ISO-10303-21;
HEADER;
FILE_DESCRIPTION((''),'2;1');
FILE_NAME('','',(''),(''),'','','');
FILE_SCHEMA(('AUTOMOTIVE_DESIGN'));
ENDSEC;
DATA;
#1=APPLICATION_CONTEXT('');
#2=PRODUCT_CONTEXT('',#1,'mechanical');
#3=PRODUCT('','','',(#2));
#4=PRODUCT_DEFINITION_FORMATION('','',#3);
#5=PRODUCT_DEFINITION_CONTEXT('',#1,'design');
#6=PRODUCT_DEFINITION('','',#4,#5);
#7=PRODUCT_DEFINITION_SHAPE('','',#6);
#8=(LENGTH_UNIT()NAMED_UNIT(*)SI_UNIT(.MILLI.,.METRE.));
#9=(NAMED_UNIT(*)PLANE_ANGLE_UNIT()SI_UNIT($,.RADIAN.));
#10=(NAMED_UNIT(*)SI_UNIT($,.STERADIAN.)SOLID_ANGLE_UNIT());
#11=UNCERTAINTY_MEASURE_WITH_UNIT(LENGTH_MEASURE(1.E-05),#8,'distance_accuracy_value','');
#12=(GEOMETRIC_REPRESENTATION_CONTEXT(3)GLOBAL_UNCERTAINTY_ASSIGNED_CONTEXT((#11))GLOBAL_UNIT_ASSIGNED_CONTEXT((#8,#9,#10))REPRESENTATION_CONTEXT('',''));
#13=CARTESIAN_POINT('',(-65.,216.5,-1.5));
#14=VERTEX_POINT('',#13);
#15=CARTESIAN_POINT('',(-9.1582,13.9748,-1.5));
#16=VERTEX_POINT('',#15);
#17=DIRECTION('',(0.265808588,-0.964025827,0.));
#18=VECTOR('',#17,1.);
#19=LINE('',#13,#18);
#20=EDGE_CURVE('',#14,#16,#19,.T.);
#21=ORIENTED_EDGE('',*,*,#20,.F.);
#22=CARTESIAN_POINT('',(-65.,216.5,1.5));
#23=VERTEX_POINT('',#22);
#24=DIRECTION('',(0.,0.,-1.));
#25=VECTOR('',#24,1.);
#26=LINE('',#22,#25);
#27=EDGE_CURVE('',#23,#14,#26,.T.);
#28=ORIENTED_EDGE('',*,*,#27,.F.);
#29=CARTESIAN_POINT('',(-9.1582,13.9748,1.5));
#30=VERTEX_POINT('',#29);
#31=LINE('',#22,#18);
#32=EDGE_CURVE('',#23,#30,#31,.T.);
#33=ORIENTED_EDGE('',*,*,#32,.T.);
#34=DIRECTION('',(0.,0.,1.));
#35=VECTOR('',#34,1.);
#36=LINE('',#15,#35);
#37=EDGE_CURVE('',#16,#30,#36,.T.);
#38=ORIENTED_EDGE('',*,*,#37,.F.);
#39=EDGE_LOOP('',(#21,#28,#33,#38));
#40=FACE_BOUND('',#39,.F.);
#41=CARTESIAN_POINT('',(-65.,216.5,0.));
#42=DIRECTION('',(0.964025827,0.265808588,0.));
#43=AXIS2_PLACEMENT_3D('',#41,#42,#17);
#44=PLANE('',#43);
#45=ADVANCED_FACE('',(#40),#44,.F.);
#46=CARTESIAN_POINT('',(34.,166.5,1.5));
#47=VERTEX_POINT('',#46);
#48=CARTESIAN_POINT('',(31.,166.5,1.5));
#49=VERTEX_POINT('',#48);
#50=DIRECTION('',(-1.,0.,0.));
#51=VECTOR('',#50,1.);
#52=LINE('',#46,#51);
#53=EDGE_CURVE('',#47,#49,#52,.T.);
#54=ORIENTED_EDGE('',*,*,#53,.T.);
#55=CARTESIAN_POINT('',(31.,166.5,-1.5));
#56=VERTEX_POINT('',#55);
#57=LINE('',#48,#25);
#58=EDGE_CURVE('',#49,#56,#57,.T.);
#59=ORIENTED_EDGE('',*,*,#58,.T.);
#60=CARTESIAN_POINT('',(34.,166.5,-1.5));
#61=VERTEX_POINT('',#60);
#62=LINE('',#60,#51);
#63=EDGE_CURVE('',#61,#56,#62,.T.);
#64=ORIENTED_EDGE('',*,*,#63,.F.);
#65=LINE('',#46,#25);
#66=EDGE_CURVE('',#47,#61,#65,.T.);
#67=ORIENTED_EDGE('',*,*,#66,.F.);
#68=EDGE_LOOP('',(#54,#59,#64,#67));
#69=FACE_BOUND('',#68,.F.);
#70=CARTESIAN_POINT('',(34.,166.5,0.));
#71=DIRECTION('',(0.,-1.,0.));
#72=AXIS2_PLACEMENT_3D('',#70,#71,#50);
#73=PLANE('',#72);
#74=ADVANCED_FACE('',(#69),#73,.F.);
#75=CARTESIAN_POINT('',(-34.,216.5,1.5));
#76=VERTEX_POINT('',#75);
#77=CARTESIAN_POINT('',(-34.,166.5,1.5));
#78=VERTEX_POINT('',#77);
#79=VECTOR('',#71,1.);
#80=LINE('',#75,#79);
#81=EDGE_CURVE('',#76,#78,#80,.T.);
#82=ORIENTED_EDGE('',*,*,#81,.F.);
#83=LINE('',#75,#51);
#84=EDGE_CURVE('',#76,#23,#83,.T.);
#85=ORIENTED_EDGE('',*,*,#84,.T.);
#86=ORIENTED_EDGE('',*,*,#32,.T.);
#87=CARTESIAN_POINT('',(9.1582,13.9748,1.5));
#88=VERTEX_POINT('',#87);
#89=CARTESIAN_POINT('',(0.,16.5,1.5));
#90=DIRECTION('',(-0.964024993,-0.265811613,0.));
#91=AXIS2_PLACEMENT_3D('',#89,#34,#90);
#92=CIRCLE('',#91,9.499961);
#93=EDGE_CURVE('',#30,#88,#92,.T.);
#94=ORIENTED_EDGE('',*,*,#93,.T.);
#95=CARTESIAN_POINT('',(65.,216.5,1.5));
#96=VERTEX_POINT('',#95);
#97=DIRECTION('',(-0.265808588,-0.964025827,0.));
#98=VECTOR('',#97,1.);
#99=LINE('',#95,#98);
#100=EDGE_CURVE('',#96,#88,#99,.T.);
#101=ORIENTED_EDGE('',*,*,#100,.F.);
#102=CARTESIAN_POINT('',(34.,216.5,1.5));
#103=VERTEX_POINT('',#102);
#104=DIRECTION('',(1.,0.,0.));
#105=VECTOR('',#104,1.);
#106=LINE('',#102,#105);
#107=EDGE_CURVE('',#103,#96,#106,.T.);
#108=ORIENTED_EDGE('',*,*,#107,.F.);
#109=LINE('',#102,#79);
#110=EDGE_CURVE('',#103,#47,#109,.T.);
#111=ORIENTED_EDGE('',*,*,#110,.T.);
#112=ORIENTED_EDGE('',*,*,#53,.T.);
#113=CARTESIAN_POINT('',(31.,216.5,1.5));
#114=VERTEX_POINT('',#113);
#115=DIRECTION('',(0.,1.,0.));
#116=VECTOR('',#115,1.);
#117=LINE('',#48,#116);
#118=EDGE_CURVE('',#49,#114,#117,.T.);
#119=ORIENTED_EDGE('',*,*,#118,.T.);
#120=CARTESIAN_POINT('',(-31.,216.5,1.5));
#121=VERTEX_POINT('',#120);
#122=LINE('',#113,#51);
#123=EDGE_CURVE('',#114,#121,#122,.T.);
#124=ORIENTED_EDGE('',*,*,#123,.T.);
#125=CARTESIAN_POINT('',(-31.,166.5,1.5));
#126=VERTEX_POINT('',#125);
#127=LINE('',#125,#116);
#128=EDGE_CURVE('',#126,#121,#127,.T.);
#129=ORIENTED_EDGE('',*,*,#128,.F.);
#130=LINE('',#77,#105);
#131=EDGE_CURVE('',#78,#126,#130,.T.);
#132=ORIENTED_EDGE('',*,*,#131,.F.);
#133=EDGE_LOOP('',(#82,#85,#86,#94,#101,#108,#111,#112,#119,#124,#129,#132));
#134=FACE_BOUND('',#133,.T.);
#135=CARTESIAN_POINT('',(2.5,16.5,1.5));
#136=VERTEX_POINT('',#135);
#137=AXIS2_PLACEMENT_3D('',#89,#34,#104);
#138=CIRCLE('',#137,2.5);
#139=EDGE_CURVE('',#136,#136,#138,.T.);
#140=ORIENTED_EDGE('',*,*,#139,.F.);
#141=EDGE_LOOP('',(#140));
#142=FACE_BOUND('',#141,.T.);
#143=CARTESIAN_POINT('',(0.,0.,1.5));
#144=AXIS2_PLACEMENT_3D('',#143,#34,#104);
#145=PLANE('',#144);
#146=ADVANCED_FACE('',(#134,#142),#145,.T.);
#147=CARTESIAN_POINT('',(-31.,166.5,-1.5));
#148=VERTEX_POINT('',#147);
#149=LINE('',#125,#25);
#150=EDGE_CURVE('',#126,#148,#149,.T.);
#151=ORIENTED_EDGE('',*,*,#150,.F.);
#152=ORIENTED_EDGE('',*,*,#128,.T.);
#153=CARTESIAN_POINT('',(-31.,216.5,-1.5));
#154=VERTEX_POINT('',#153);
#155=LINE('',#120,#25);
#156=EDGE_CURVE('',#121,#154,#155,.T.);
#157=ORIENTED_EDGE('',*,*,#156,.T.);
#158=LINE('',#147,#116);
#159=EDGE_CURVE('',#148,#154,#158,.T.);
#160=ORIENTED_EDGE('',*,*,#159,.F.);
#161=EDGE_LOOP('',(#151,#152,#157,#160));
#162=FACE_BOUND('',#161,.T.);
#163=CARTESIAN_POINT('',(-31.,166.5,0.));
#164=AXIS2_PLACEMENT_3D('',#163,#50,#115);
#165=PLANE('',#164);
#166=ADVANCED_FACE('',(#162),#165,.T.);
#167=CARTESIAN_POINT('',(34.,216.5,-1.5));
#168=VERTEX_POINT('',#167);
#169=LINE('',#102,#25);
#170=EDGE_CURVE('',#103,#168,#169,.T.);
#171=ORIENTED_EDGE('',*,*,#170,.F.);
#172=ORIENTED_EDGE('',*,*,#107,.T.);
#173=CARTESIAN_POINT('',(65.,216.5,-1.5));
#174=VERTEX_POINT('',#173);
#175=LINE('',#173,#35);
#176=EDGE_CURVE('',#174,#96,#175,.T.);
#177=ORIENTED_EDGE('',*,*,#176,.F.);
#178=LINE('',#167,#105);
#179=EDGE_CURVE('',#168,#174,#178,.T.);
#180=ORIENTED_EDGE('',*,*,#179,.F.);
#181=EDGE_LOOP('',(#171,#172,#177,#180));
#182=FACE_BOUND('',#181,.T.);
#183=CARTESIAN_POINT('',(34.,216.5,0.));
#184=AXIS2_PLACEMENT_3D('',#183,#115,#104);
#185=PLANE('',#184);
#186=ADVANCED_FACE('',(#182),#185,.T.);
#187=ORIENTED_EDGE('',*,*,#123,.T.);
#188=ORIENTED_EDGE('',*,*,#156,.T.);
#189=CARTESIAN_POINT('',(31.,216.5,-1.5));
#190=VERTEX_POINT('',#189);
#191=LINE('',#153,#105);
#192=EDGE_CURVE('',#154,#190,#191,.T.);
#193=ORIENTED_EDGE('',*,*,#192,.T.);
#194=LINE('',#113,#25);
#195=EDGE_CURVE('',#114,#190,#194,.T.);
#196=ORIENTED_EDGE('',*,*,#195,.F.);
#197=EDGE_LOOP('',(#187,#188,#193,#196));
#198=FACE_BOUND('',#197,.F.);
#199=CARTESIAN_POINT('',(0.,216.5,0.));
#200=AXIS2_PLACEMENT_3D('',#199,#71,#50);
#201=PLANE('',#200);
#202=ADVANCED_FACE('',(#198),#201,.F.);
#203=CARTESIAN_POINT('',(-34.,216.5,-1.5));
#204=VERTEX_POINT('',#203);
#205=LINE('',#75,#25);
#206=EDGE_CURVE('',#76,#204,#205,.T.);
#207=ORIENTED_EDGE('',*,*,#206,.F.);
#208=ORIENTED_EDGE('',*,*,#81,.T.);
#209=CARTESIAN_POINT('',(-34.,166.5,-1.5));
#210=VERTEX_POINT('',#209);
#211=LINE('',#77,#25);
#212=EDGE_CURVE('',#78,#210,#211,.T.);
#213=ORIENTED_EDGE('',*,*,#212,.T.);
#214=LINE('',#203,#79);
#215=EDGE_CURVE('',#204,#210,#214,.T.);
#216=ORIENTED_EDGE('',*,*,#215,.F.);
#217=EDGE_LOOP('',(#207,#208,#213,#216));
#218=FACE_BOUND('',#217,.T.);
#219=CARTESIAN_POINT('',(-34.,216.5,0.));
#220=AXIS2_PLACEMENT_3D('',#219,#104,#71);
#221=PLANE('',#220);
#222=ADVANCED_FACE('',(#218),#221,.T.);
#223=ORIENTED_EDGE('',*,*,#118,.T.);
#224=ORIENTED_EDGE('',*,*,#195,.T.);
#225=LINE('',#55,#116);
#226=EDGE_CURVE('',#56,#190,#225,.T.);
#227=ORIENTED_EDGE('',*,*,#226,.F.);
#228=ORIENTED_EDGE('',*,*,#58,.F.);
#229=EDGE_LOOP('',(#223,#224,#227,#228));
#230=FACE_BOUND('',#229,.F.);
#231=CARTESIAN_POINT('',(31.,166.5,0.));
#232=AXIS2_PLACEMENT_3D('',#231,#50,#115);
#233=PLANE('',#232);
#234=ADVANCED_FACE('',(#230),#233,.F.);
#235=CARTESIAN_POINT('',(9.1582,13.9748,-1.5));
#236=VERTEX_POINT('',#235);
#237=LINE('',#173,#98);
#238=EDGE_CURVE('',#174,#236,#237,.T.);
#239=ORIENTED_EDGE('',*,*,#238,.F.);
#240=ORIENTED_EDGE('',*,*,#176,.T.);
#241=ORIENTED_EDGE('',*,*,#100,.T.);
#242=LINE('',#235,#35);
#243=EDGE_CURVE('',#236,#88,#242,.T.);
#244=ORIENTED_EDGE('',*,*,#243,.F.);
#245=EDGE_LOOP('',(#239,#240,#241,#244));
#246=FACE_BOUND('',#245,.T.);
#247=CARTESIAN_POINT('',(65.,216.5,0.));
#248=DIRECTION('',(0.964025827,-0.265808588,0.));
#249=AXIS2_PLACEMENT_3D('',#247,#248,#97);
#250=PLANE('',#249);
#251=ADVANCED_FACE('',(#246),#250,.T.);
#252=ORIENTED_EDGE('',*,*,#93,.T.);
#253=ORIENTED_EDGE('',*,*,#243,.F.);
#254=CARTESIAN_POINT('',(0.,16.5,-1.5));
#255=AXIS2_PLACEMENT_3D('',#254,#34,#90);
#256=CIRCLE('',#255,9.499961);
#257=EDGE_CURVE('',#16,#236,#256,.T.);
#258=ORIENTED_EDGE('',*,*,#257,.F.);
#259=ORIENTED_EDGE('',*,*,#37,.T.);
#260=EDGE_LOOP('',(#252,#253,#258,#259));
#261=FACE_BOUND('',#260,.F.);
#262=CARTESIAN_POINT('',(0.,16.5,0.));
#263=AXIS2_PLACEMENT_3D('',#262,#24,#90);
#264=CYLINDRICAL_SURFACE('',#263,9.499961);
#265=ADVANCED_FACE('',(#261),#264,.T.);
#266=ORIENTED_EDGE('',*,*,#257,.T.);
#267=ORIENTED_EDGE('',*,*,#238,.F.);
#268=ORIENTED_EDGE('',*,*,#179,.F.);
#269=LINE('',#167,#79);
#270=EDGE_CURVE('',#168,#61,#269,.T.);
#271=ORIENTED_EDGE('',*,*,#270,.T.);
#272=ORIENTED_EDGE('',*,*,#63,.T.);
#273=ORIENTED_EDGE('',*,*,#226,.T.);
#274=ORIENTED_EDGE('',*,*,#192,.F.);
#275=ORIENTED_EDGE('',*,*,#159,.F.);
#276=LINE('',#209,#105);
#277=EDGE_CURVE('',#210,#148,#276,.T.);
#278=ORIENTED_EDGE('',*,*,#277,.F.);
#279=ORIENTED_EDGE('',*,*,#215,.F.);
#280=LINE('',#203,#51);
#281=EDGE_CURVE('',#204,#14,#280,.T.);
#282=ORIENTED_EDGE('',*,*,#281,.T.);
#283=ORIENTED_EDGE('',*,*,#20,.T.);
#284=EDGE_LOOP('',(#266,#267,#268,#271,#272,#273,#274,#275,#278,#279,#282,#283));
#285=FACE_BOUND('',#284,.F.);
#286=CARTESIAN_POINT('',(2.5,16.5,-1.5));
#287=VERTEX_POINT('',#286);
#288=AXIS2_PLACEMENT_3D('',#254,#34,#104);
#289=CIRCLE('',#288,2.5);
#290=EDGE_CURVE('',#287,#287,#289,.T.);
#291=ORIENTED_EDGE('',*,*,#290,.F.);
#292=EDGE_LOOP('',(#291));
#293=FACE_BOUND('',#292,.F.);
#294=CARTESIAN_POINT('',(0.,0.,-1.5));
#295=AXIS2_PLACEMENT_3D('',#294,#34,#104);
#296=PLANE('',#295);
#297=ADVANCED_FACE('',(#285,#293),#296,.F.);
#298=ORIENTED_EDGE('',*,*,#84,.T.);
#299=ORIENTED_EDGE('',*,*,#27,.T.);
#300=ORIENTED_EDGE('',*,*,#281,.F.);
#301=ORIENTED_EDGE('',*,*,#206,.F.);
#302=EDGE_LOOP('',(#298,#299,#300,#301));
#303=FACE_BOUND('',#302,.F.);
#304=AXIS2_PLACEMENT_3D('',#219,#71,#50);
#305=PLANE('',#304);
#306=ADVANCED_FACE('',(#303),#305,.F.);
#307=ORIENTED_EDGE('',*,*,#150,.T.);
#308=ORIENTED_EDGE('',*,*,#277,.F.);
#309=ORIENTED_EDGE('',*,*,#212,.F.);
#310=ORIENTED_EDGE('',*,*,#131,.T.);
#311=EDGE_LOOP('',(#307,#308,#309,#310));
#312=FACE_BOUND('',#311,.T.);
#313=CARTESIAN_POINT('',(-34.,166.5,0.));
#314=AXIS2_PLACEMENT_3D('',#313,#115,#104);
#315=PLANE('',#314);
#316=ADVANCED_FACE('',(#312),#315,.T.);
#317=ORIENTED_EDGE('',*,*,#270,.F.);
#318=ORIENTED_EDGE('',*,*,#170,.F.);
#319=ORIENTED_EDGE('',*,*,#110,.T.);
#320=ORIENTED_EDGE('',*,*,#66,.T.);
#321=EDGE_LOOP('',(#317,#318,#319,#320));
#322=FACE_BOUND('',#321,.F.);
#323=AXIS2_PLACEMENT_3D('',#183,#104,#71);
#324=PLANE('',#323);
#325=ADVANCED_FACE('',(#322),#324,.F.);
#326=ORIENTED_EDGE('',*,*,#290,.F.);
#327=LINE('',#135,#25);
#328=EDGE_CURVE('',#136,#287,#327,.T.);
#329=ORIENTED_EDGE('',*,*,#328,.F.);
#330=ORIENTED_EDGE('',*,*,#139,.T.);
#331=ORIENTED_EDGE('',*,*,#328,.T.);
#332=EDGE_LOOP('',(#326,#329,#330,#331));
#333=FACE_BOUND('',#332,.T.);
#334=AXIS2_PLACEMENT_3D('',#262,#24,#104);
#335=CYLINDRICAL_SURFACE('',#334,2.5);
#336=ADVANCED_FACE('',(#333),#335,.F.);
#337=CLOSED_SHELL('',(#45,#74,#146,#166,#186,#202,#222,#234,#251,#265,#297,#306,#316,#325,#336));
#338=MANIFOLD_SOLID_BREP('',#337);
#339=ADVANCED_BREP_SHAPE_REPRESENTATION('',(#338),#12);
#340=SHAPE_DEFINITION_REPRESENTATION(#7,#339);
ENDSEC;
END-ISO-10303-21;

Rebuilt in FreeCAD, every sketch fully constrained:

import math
import FreeCAD as App
import Part
import Sketcher
Q = App.Units.Quantity

doc = App.newDocument("Part")
params = doc.addObject("Spreadsheet::Sheet", "Params")
for row, (alias, value) in enumerate([
    ("sketch1_radius", "9.5 mm"),
    ("sketch1_width", "31 mm"),
    ("sketch1_width2", "3 mm"),
    ("sketch1_height", "50 mm"),
    ("sketch1_diameter", "5 mm"),
    ("pad1_length", "1.5 mm"),
    ("pad1_length2", "1.5 mm"),
], start=1):
    params.set(f"A{row}", alias)
    params.set(f"B{row}", "=" + value)
    params.setAlias(f"B{row}", alias)

body = doc.addObject("PartDesign::Body", "Body")

sketch1 = doc.addObject("Sketcher::SketchObject", "Sketch")
body.addObject(sketch1)
sketch1.AttachmentSupport = (doc.XY_Plane, [""])
sketch1.MapMode = "FlatFace"
sketch1.addGeometry(Part.LineSegment(App.Vector(-65, 216.5, 0), App.Vector(-9.2, 14, 0)), False)
sketch1.addGeometry(Part.ArcOfCircle(Part.Circle(App.Vector(0, 16.5, 0), App.Vector(0, 0, 1), 9.5), math.radians(-165), math.radians(-15)), False)
sketch1.addGeometry(Part.LineSegment(App.Vector(9.2, 14, 0), App.Vector(65, 216.5, 0)), False)
sketch1.addGeometry(Part.LineSegment(App.Vector(65, 216.5, 0), App.Vector(34, 216.5, 0)), False)
sketch1.addGeometry(Part.LineSegment(App.Vector(34, 216.5, 0), App.Vector(34, 166.5, 0)), False)
sketch1.addGeometry(Part.LineSegment(App.Vector(34, 166.5, 0), App.Vector(31, 166.5, 0)), False)
sketch1.addGeometry(Part.LineSegment(App.Vector(31, 166.5, 0), App.Vector(31, 216.5, 0)), False)
sketch1.addGeometry(Part.LineSegment(App.Vector(31, 216.5, 0), App.Vector(-31, 216.5, 0)), False)
sketch1.addGeometry(Part.LineSegment(App.Vector(-31, 216.5, 0), App.Vector(-31, 166.5, 0)), False)
sketch1.addGeometry(Part.LineSegment(App.Vector(-31, 166.5, 0), App.Vector(-34, 166.5, 0)), False)
sketch1.addGeometry(Part.LineSegment(App.Vector(-34, 166.5, 0), App.Vector(-34, 216.5, 0)), False)
sketch1.addGeometry(Part.LineSegment(App.Vector(-34, 216.5, 0), App.Vector(-65, 216.5, 0)), False)
sketch1.addGeometry(Part.Circle(App.Vector(0, 16.5, 0), App.Vector(0, 0, 1), 2.5), False)
sketch1.addConstraint(Sketcher.Constraint("Tangent", 0, 2, 1, 1))
sketch1.addConstraint(Sketcher.Constraint("Tangent", 1, 2, 2, 1))
sketch1.addConstraint(Sketcher.Constraint("Coincident", 2, 2, 3, 1))
sketch1.addConstraint(Sketcher.Constraint("Coincident", 3, 2, 4, 1))
sketch1.addConstraint(Sketcher.Constraint("Coincident", 4, 2, 5, 1))
sketch1.addConstraint(Sketcher.Constraint("Coincident", 5, 2, 6, 1))
sketch1.addConstraint(Sketcher.Constraint("Coincident", 6, 2, 7, 1))
sketch1.addConstraint(Sketcher.Constraint("Coincident", 7, 2, 8, 1))
sketch1.addConstraint(Sketcher.Constraint("Coincident", 8, 2, 9, 1))
sketch1.addConstraint(Sketcher.Constraint("Coincident", 9, 2, 10, 1))
sketch1.addConstraint(Sketcher.Constraint("Coincident", 10, 2, 11, 1))
sketch1.addConstraint(Sketcher.Constraint("Coincident", 11, 2, 0, 1))
sketch1.addConstraint(Sketcher.Constraint("Horizontal", 3))
sketch1.addConstraint(Sketcher.Constraint("Vertical", 4))
sketch1.addConstraint(Sketcher.Constraint("Horizontal", 5))
sketch1.addConstraint(Sketcher.Constraint("Vertical", 6))
sketch1.addConstraint(Sketcher.Constraint("Horizontal", 7))
sketch1.addConstraint(Sketcher.Constraint("Vertical", 8))
sketch1.addConstraint(Sketcher.Constraint("Horizontal", 9))
sketch1.addConstraint(Sketcher.Constraint("Vertical", 10))
sketch1.addConstraint(Sketcher.Constraint("Horizontal", 11))
sketch1.addConstraint(Sketcher.Constraint("Coincident", 12, 3, 1, 3))
sketch1.addConstraint(Sketcher.Constraint("Symmetric", 0, 2, 1, 2, -2))
sketch1.addConstraint(Sketcher.Constraint("Symmetric", 5, 2, 8, 2, -2))
sketch1.addConstraint(Sketcher.Constraint("Symmetric", 3, 2, 10, 2, -2))
sketch1.addConstraint(Sketcher.Constraint("Horizontal", 3, 2, 6, 2))
sketch1.addConstraint(Sketcher.Constraint("Radius", 1, Q("9.5 mm")))
sketch1.addConstraint(Sketcher.Constraint("DistanceX", 3, 2, 3, 1, Q("31 mm")))
sketch1.addConstraint(Sketcher.Constraint("DistanceX", 5, 2, 5, 1, Q("3 mm")))
sketch1.addConstraint(Sketcher.Constraint("DistanceY", 4, 2, 4, 1, Q("50 mm")))
sketch1.addConstraint(Sketcher.Constraint("Diameter", 12, Q("5 mm")))
sketch1.addConstraint(Sketcher.Constraint("DistanceX", -1, 1, 2, 2, Q("65 mm")))
sketch1.addConstraint(Sketcher.Constraint("DistanceY", 1, 3, 2, 2, Q("200 mm")))
sketch1.addConstraint(Sketcher.Constraint("DistanceY", -1, 1, 1, 3, Q("16.5 mm")))
sketch1.setExpression("Constraints[26]", "Params.sketch1_radius")
sketch1.setExpression("Constraints[27]", "Params.sketch1_width")
sketch1.setExpression("Constraints[28]", "Params.sketch1_width2")
sketch1.setExpression("Constraints[29]", "Params.sketch1_height")
sketch1.setExpression("Constraints[30]", "Params.sketch1_diameter")
pad1 = doc.addObject("PartDesign::Pad", "Pad")
body.addObject(pad1)
pad1.Profile = sketch1
pad1.Type = "TwoLengths"
pad1.setExpression("Length", "Params.pad1_length")
pad1.setExpression("Length2", "Params.pad1_length2")

doc.recompute()
